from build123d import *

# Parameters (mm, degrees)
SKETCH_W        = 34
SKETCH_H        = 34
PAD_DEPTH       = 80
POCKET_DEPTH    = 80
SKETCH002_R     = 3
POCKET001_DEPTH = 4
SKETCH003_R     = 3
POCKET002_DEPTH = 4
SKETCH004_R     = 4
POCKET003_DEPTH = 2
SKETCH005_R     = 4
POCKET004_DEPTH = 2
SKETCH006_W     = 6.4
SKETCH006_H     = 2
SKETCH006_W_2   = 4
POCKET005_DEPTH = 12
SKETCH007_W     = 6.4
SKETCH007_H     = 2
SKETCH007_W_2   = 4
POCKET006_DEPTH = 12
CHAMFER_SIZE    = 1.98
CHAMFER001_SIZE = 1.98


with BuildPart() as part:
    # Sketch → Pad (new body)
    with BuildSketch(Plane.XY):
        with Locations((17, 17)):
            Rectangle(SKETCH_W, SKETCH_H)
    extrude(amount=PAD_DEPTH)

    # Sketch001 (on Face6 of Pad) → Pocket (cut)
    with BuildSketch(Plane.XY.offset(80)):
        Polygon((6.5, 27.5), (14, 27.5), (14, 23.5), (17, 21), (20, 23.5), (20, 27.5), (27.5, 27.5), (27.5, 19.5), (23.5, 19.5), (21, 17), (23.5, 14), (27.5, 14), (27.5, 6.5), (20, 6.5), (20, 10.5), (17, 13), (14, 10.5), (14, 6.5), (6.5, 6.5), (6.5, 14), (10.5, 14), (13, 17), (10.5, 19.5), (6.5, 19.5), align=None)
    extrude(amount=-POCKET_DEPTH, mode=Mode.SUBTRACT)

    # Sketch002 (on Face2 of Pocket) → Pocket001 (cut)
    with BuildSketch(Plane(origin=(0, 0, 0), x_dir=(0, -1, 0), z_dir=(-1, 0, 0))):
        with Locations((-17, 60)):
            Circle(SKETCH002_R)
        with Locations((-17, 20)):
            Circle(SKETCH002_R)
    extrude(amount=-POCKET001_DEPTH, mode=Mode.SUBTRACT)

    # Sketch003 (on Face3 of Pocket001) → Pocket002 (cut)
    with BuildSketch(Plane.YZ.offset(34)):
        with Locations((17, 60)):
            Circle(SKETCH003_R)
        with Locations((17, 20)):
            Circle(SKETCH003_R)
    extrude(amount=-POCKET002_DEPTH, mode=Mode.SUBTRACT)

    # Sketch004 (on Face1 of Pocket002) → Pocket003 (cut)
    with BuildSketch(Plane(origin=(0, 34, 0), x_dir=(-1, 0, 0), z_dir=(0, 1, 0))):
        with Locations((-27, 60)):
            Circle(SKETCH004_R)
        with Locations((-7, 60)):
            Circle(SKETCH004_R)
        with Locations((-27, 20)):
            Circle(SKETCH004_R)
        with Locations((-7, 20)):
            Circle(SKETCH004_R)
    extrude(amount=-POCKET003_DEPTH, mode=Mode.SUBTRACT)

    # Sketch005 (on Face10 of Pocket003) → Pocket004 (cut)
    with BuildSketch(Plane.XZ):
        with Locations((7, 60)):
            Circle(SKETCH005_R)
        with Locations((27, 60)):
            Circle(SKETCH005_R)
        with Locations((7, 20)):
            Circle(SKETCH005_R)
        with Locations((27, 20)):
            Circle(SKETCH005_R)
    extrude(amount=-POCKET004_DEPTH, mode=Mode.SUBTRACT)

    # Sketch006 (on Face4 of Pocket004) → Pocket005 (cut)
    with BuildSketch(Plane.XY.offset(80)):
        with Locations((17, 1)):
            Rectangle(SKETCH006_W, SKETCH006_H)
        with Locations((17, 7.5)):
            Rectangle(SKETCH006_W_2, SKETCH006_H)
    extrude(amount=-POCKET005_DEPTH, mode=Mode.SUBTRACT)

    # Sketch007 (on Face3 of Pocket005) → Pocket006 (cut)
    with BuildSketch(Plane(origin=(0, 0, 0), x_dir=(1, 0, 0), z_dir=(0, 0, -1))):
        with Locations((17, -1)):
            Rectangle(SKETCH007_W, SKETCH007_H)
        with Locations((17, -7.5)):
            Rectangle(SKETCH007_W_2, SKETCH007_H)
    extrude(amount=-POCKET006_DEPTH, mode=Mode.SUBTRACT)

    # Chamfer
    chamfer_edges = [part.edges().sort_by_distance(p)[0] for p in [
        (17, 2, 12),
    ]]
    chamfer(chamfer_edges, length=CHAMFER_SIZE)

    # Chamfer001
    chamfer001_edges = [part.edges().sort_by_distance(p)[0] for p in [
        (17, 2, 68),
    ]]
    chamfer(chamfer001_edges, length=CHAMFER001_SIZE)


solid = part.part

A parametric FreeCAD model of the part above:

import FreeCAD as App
import Part
import Sketcher
from FreeCAD import Vector
Q = App.Units.Quantity


def edges_at(feature, points):
    """Names of the edges that pass closest to the given points."""
    edges = feature.Shape.Edges
    near = lambda p: min(range(len(edges)), key=lambda i: edges[i].distToShape(Part.Vertex(*p))[0])
    return sorted({f"Edge{near(p) + 1}" for p in points})

doc = App.newDocument("Part")
params = doc.addObject("Spreadsheet::Sheet", "Params")
for row, (alias, value) in enumerate([
    ("sketch1_width", "34 mm"),
    ("pad1_length", "80 mm"),
    ("sketch2_width", "4 mm"),
    ("sketch2_height", "8 mm"),
    ("sketch2_width2", "7.5 mm"),
    ("pocket1_length", "80 mm"),
    ("sketch3_diameter", "6 mm"),
    ("pocket2_length", "4 mm"),
    ("sketch4_diameter", "6 mm"),
    ("pocket3_length", "4 mm"),
    ("sketch5_diameter", "8 mm"),
    ("pocket4_length", "2 mm"),
    ("sketch6_diameter", "8 mm"),
    ("pocket5_length", "2 mm"),
    ("sketch7_width", "4 mm"),
    ("sketch7_height", "2 mm"),
    ("sketch7_width2", "6.4 mm"),
    ("pocket6_length", "12 mm"),
    ("sketch8_width", "4 mm"),
    ("sketch8_height", "2 mm"),
    ("sketch8_width2", "6.4 mm"),
    ("pocket7_length", "12 mm"),
    ("chamfer_size", "1.98 mm"),
    ("chamfer2_size", "1.98 mm"),
], start=1):
    params.set(f"A{row}", alias)
    params.set(f"B{row}", "=" + value)
    params.setAlias(f"B{row}", alias)

body = doc.addObject("PartDesign::Body", "Body")

sketch1 = doc.addObject("Sketcher::SketchObject", "Sketch")
body.addObject(sketch1)
sketch1.AttachmentSupport = (doc.XY_Plane, [""])
sketch1.MapMode = "FlatFace"
sketch1.addGeometry([
    Part.LineSegment(Vector(0, 34, 0), Vector(0, 0, 0)),
    Part.LineSegment(Vector(0, 0, 0), Vector(34, 0, 0)),
    Part.LineSegment(Vector(34, 0, 0), Vector(34, 34, 0)),
    Part.LineSegment(Vector(34, 34, 0), Vector(0, 34, 0)),
], False)
sketch1.addConstraint([
    Sketcher.Constraint("Coincident", 0, 2, 1, 1),
    Sketcher.Constraint("Coincident", 1, 2, 2, 1),
    Sketcher.Constraint("Coincident", 2, 2, 3, 1),
    Sketcher.Constraint("Coincident", 3, 2, 0, 1),
    Sketcher.Constraint("Vertical", 0),
    Sketcher.Constraint("Horizontal", 1),
    Sketcher.Constraint("Vertical", 2),
    Sketcher.Constraint("Horizontal", 3),
    Sketcher.Constraint("Coincident", 0, 2, -1, 1),
    Sketcher.Constraint("Equal", 3, 0),
    Sketcher.Constraint("DistanceX", 1, 1, 1, 2, Q("34 mm")),
])
sketch1.setExpression("Constraints[10]", "Params.sketch1_width")
pad1 = doc.addObject("PartDesign::Pad", "Pad")
body.addObject(pad1)
pad1.Profile = sketch1
pad1.setExpression("Length", "Params.pad1_length")

sketch2 = doc.addObject("Sketcher::SketchObject", "Sketch001")
body.addObject(sketch2)
sketch2.AttachmentSupport = (doc.XY_Plane, [""])
sketch2.MapMode = "FlatFace"
sketch2.AttachmentOffset = App.Placement(Vector(0, 0, 80), App.Rotation())
sketch2.addGeometry([
    Part.LineSegment(Vector(14, 27.5, 0), Vector(6.5, 27.5, 0)),
    Part.LineSegment(Vector(6.5, 27.5, 0), Vector(6.5, 19.5, 0)),
    Part.LineSegment(Vector(6.5, 19.5, 0), Vector(10.5, 19.5, 0)),
    Part.LineSegment(Vector(10.5, 19.5, 0), Vector(13, 17, 0)),
    Part.LineSegment(Vector(13, 17, 0), Vector(10.5, 14, 0)),
    Part.LineSegment(Vector(10.5, 14, 0), Vector(6.5, 14, 0)),
    Part.LineSegment(Vector(6.5, 14, 0), Vector(6.5, 6.5, 0)),
    Part.LineSegment(Vector(6.5, 6.5, 0), Vector(14, 6.5, 0)),
    Part.LineSegment(Vector(14, 6.5, 0), Vector(14, 10.5, 0)),
    Part.LineSegment(Vector(14, 10.5, 0), Vector(17, 13, 0)),
    Part.LineSegment(Vector(17, 13, 0), Vector(20, 10.5, 0)),
    Part.LineSegment(Vector(20, 10.5, 0), Vector(20, 6.5, 0)),
    Part.LineSegment(Vector(20, 6.5, 0), Vector(27.5, 6.5, 0)),
    Part.LineSegment(Vector(27.5, 6.5, 0), Vector(27.5, 14, 0)),
    Part.LineSegment(Vector(27.5, 14, 0), Vector(23.5, 14, 0)),
    Part.LineSegment(Vector(23.5, 14, 0), Vector(21, 17, 0)),
    Part.LineSegment(Vector(21, 17, 0), Vector(23.5, 19.5, 0)),
    Part.LineSegment(Vector(23.5, 19.5, 0), Vector(27.5, 19.5, 0)),
    Part.LineSegment(Vector(27.5, 19.5, 0), Vector(27.5, 27.5, 0)),
    Part.LineSegment(Vector(27.5, 27.5, 0), Vector(20, 27.5, 0)),
    Part.LineSegment(Vector(20, 27.5, 0), Vector(20, 23.5, 0)),
    Part.LineSegment(Vector(20, 23.5, 0), Vector(17, 21, 0)),
    Part.LineSegment(Vector(17, 21, 0), Vector(14, 23.5, 0)),
    Part.LineSegment(Vector(14, 23.5, 0), Vector(14, 27.5, 0)),
], False)
sketch2.addConstraint([
    Sketcher.Constraint("Coincident", 0, 2, 1, 1),
    Sketcher.Constraint("Coincident", 1, 2, 2, 1),
    Sketcher.Constraint("Coincident", 2, 2, 3, 1),
    Sketcher.Constraint("Coincident", 3, 2, 4, 1),
    Sketcher.Constraint("Coincident", 4, 2, 5, 1),
    Sketcher.Constraint("Coincident", 5, 2, 6, 1),
    Sketcher.Constraint("Coincident", 6, 2, 7, 1),
    Sketcher.Constraint("Coincident", 7, 2, 8, 1),
    Sketcher.Constraint("Coincident", 8, 2, 9, 1),
    Sketcher.Constraint("Coincident", 9, 2, 10, 1),
    Sketcher.Constraint("Coincident", 10, 2, 11, 1),
    Sketcher.Constraint("Coincident", 11, 2, 12, 1),
    Sketcher.Constraint("Coincident", 12, 2, 13, 1),
    Sketcher.Constraint("Coincident", 13, 2, 14, 1),
    Sketcher.Constraint("Coincident", 14, 2, 15, 1),
    Sketcher.Constraint("Coincident", 15, 2, 16, 1),
    Sketcher.Constraint("Coincident", 16, 2, 17, 1),
    Sketcher.Constraint("Coincident", 17, 2, 18, 1),
    Sketcher.Constraint("Coincident", 18, 2, 19, 1),
    Sketcher.Constraint("Coincident", 19, 2, 20, 1),
    Sketcher.Constraint("Coincident", 20, 2, 21, 1),
    Sketcher.Constraint("Coincident", 21, 2, 22, 1),
    Sketcher.Constraint("Coincident", 22, 2, 23, 1),
    Sketcher.Constraint("Coincident", 23, 2, 0, 1),
    Sketcher.Constraint("Horizontal", 0),
    Sketcher.Constraint("Vertical", 1),
    Sketcher.Constraint("Horizontal", 2),
    Sketcher.Constraint("Horizontal", 5),
    Sketcher.Constraint("Vertical", 6),
    Sketcher.Constraint("Horizontal", 7),
    Sketcher.Constraint("Vertical", 8),
    Sketcher.Constraint("Vertical", 11),
    Sketcher.Constraint("Horizontal", 12),
    Sketcher.Constraint("Vertical", 13),
    Sketcher.Constraint("Horizontal", 14),
    Sketcher.Constraint("Horizontal", 17),
    Sketcher.Constraint("Vertical", 18),
    Sketcher.Constraint("Horizontal", 19),
    Sketcher.Constraint("Vertical", 20),
    Sketcher.Constraint("Vertical", 23),
    Sketcher.Constraint("Perpendicular", 4, 10),
    Sketcher.Constraint("Perpendicular", 9, 15),
    Sketcher.Constraint("Perpendicular", 3, 16),
    Sketcher.Constraint("Perpendicular", 15, 21),
    Sketcher.Constraint("Parallel", 10, 22),
    Sketcher.Constraint("Horizontal", 8, 2, 10, 2),
    Sketcher.Constraint("Horizontal", 7, 2, 11, 2),
    Sketcher.Constraint("Horizontal", 5, 2, 13, 2),
    Sketcher.Constraint("Horizontal", 3, 2, 15, 2),
    Sketcher.Constraint("Horizontal", 2, 2, 16, 2),
    Sketcher.Constraint("Horizontal", 0, 2, 18, 2),
    Sketcher.Constraint("Horizontal", 20, 2, 22, 2),
    Sketcher.Constraint("Vertical", 2, 2, 4, 2),
    Sketcher.Constraint("Vertical", 1, 2, 5, 2),
    Sketcher.Constraint("Vertical", 14, 2, 16, 2),
    Sketcher.Constraint("Vertical", 13, 2, 17, 2),
    Sketcher.Constraint("Vertical", 11, 2, 19, 2),
    Sketcher.Constraint("Vertical", 9, 2, 21, 2),
    Sketcher.Constraint("Vertical", 8, 2, 22, 2),
    Sketcher.Constraint("Equal", 7, 12),
    Sketcher.Constraint("Equal", 5, 14),
    Sketcher.Constraint("Equal", 19, 6),
    Sketcher.Constraint("Equal", 17, 8),
    Sketcher.Constraint("Equal", 11, 20),
    Sketcher.Constraint("Equal", 4, 9),
    Sketcher.Constraint("DistanceX", 2, 1, 2, 2, Q("4 mm")),
    Sketcher.Constraint("DistanceY", 1, 2, 1, 1, Q("8 mm")),
    Sketcher.Constraint("DistanceX", 0, 2, 0, 1, Q("7.5 mm")),
    Sketcher.Constraint("DistanceX", -1, 1, 3, 2, Q("13 mm")),
    Sketcher.Constraint("DistanceY", -1, 1, 3, 2, Q("17 mm")),
    Sketcher.Constraint("DistanceY", -1, 1, 4, 2, Q("14 mm")),
    Sketcher.Constraint("DistanceX", -1, 1, 7, 2, Q("14 mm")),
])
sketch2.setExpression("Constraints[65]", "Params.sketch2_width")
sketch2.setExpression("Constraints[66]", "Params.sketch2_height")
sketch2.setExpression("Constraints[67]", "Params.sketch2_width2")
pocket1 = doc.addObject("PartDesign::Pocket", "Pocket")
body.addObject(pocket1)
pocket1.Profile = sketch2
pocket1.setExpression("Length", "Params.pocket1_length")

sketch3 = doc.addObject("Sketcher::SketchObject", "Sketch002")
body.addObject(sketch3)
sketch3.AttachmentSupport = (doc.YZ_Plane, [""])
sketch3.MapMode = "FlatFace"
sketch3.addGeometry([
    Part.Circle(Vector(17, 60, 0), Vector(0, 0, 1), 3),
    Part.Circle(Vector(17, 20, 0), Vector(0, 0, 1), 3),
], False)
sketch3.addConstraint([
    Sketcher.Constraint("Equal", 0, 1),
    Sketcher.Constraint("Vertical", 0, 3, 1, 3),
    Sketcher.Constraint("Diameter", 0, Q("6 mm")),
    Sketcher.Constraint("DistanceX", -1, 1, 0, 3, Q("17 mm")),
    Sketcher.Constraint("DistanceY", -1, 1, 0, 3, Q("60 mm")),
    Sketcher.Constraint("DistanceY", -1, 1, 1, 3, Q("20 mm")),
])
sketch3.setExpression("Constraints[2]", "Params.sketch3_diameter")
pocket2 = doc.addObject("PartDesign::Pocket", "Pocket001")
body.addObject(pocket2)
pocket2.Profile = sketch3
pocket2.setExpression("Length", "Params.pocket2_length")
pocket2.Reversed = True

sketch4 = doc.addObject("Sketcher::SketchObject", "Sketch003")
body.addObject(sketch4)
sketch4.AttachmentSupport = (doc.YZ_Plane, [""])
sketch4.MapMode = "FlatFace"
sketch4.AttachmentOffset = App.Placement(Vector(0, 0, 34), App.Rotation())
sketch4.addGeometry([
    Part.Circle(Vector(17, 60, 0), Vector(0, 0, 1), 3),
    Part.Circle(Vector(17, 20, 0), Vector(0, 0, 1), 3),
], False)
sketch4.addConstraint([
    Sketcher.Constraint("Equal", 0, 1),
    Sketcher.Constraint("Vertical", 0, 3, 1, 3),
    Sketcher.Constraint("Diameter", 0, Q("6 mm")),
    Sketcher.Constraint("DistanceX", -1, 1, 0, 3, Q("17 mm")),
    Sketcher.Constraint("DistanceY", -1, 1, 0, 3, Q("60 mm")),
    Sketcher.Constraint("DistanceY", -1, 1, 1, 3, Q("20 mm")),
])
sketch4.setExpression("Constraints[2]", "Params.sketch4_diameter")
pocket3 = doc.addObject("PartDesign::Pocket", "Pocket002")
body.addObject(pocket3)
pocket3.Profile = sketch4
pocket3.setExpression("Length", "Params.pocket3_length")

sketch5 = doc.addObject("Sketcher::SketchObject", "Sketch004")
body.addObject(sketch5)
sketch5.AttachmentSupport = (doc.XZ_Plane, [""])
sketch5.MapMode = "FlatFace"
sketch5.AttachmentOffset = App.Placement(Vector(0, 0, -34), App.Rotation())
sketch5.addGeometry([
    Part.Circle(Vector(27, 60, 0), Vector(0, 0, 1), 4),
    Part.Circle(Vector(7, 60, 0), Vector(0, 0, 1), 4),
    Part.Circle(Vector(27, 20, 0), Vector(0, 0, 1), 4),
    Part.Circle(Vector(7, 20, 0), Vector(0, 0, 1), 4),
], False)
sketch5.addConstraint([
    Sketcher.Constraint("Equal", 0, 1),
    Sketcher.Constraint("Equal", 1, 2),
    Sketcher.Constraint("Equal", 2, 3),
    Sketcher.Constraint("Horizontal", 0, 3, 1, 3),
    Sketcher.Constraint("Horizontal", 2, 3, 3, 3),
    Sketcher.Constraint("Vertical", 0, 3, 2, 3),
    Sketcher.Constraint("Vertical", 1, 3, 3, 3),
    Sketcher.Constraint("Diameter", 0, Q("8 mm")),
    Sketcher.Constraint("DistanceX", -1, 1, 0, 3, Q("27 mm")),
    Sketcher.Constraint("DistanceY", -1, 1, 0, 3, Q("60 mm")),
    Sketcher.Constraint("DistanceX", -1, 1, 1, 3, Q("7 mm")),
    Sketcher.Constraint("DistanceY", -1, 1, 2, 3, Q("20 mm")),
])
sketch5.setExpression("Constraints[7]", "Params.sketch5_diameter")
pocket4 = doc.addObject("PartDesign::Pocket", "Pocket003")
body.addObject(pocket4)
pocket4.Profile = sketch5
pocket4.setExpression("Length", "Params.pocket4_length")
pocket4.Reversed = True

sketch6 = doc.addObject("Sketcher::SketchObject", "Sketch005")
body.addObject(sketch6)
sketch6.AttachmentSupport = (doc.XZ_Plane, [""])
sketch6.MapMode = "FlatFace"
sketch6.addGeometry([
    Part.Circle(Vector(7, 60, 0), Vector(0, 0, 1), 4),
    Part.Circle(Vector(27, 60, 0), Vector(0, 0, 1), 4),
    Part.Circle(Vector(7, 20, 0), Vector(0, 0, 1), 4),
    Part.Circle(Vector(27, 20, 0), Vector(0, 0, 1), 4),
], False)
sketch6.addConstraint([
    Sketcher.Constraint("Equal", 0, 1),
    Sketcher.Constraint("Equal", 1, 2),
    Sketcher.Constraint("Equal", 2, 3),
    Sketcher.Constraint("Horizontal", 0, 3, 1, 3),
    Sketcher.Constraint("Horizontal", 2, 3, 3, 3),
    Sketcher.Constraint("Vertical", 0, 3, 2, 3),
    Sketcher.Constraint("Vertical", 1, 3, 3, 3),
    Sketcher.Constraint("Diameter", 0, Q("8 mm")),
    Sketcher.Constraint("DistanceX", -1, 1, 0, 3, Q("7 mm")),
    Sketcher.Constraint("DistanceY", -1, 1, 0, 3, Q("60 mm")),
    Sketcher.Constraint("DistanceX", -1, 1, 1, 3, Q("27 mm")),
    Sketcher.Constraint("DistanceY", -1, 1, 2, 3, Q("20 mm")),
])
sketch6.setExpression("Constraints[7]", "Params.sketch6_diameter")
pocket5 = doc.addObject("PartDesign::Pocket", "Pocket004")
body.addObject(pocket5)
pocket5.Profile = sketch6
pocket5.setExpression("Length", "Params.pocket5_length")

sketch7 = doc.addObject("Sketcher::SketchObject", "Sketch006")
body.addObject(sketch7)
sketch7.AttachmentSupport = (doc.XY_Plane, [""])
sketch7.MapMode = "FlatFace"
sketch7.AttachmentOffset = App.Placement(Vector(0, 0, 80), App.Rotation())
sketch7.addGeometry([
    Part.LineSegment(Vector(13.8, 2, 0), Vector(13.8, 0, 0)),
    Part.LineSegment(Vector(13.8, 0, 0), Vector(20.2, 0, 0)),
    Part.LineSegment(Vector(20.2, 0, 0), Vector(20.2, 2, 0)),
    Part.LineSegment(Vector(20.2, 2, 0), Vector(13.8, 2, 0)),
    Part.LineSegment(Vector(15, 8.5, 0), Vector(15, 6.5, 0)),
    Part.LineSegment(Vector(15, 6.5, 0), Vector(19, 6.5, 0)),
    Part.LineSegment(Vector(19, 6.5, 0), Vector(19, 8.5, 0)),
    Part.LineSegment(Vector(19, 8.5, 0), Vector(15, 8.5, 0)),
], False)
sketch7.addConstraint([
    Sketcher.Constraint("Coincident", 0, 2, 1, 1),
    Sketcher.Constraint("Coincident", 1, 2, 2, 1),
    Sketcher.Constraint("Coincident", 2, 2, 3, 1),
    Sketcher.Constraint("Coincident", 3, 2, 0, 1),
    Sketcher.Constraint("Coincident", 4, 2, 5, 1),
    Sketcher.Constraint("Coincident", 5, 2, 6, 1),
    Sketcher.Constraint("Coincident", 6, 2, 7, 1),
    Sketcher.Constraint("Coincident", 7, 2, 4, 1),
    Sketcher.Constraint("Vertical", 0),
    Sketcher.Constraint("Horizontal", 1),
    Sketcher.Constraint("Vertical", 2),
    Sketcher.Constraint("Horizontal", 3),
    Sketcher.Constraint("Vertical", 4),
    Sketcher.Constraint("Horizontal", 5),
    Sketcher.Constraint("Vertical", 6),
    Sketcher.Constraint("Horizontal", 7),
    Sketcher.Constraint("PointOnObject", 0, 2, -1),
    Sketcher.Constraint("Equal", 2, 4),
    Sketcher.Constraint("DistanceX", 5, 1, 5, 2, Q("4 mm")),
    Sketcher.Constraint("DistanceY", 0, 2, 0, 1, Q("2 mm")),
    Sketcher.Constraint("DistanceX", 1, 1, 1, 2, Q("6.4 mm")),
    Sketcher.Constraint("DistanceX", -1, 1, 4, 2, Q("15 mm")),
    Sketcher.Constraint("DistanceX", -1, 1, 0, 2, Q("13.8 mm")),
    Sketcher.Constraint("DistanceY", -1, 1, 4, 2, Q("6.5 mm")),
])
sketch7.setExpression("Constraints[18]", "Params.sketch7_width")
sketch7.setExpression("Constraints[19]", "Params.sketch7_height")
sketch7.setExpression("Constraints[20]", "Params.sketch7_width2")
pocket6 = doc.addObject("PartDesign::Pocket", "Pocket005")
body.addObject(pocket6)
pocket6.Profile = sketch7
pocket6.setExpression("Length", "Params.pocket6_length")

sketch8 = doc.addObject("Sketcher::SketchObject", "Sketch007")
body.addObject(sketch8)
sketch8.AttachmentSupport = (doc.XY_Plane, [""])
sketch8.MapMode = "FlatFace"
sketch8.addGeometry([
    Part.LineSegment(Vector(13.8, 0, 0), Vector(13.8, 2, 0)),
    Part.LineSegment(Vector(13.8, 2, 0), Vector(20.2, 2, 0)),
    Part.LineSegment(Vector(20.2, 2, 0), Vector(20.2, 0, 0)),
    Part.LineSegment(Vector(20.2, 0, 0), Vector(13.8, 0, 0)),
    Part.LineSegment(Vector(15, 6.5, 0), Vector(15, 8.5, 0)),
    Part.LineSegment(Vector(15, 8.5, 0), Vector(19, 8.5, 0)),
    Part.LineSegment(Vector(19, 8.5, 0), Vector(19, 6.5, 0)),
    Part.LineSegment(Vector(19, 6.5, 0), Vector(15, 6.5, 0)),
], False)
sketch8.addConstraint([
    Sketcher.Constraint("Coincident", 0, 2, 1, 1),
    Sketcher.Constraint("Coincident", 1, 2, 2, 1),
    Sketcher.Constraint("Coincident", 2, 2, 3, 1),
    Sketcher.Constraint("Coincident", 3, 2, 0, 1),
    Sketcher.Constraint("Coincident", 4, 2, 5, 1),
    Sketcher.Constraint("Coincident", 5, 2, 6, 1),
    Sketcher.Constraint("Coincident", 6, 2, 7, 1),
    Sketcher.Constraint("Coincident", 7, 2, 4, 1),
    Sketcher.Constraint("Vertical", 0),
    Sketcher.Constraint("Horizontal", 1),
    Sketcher.Constraint("Vertical", 2),
    Sketcher.Constraint("Horizontal", 3),
    Sketcher.Constraint("Vertical", 4),
    Sketcher.Constraint("Horizontal", 5),
    Sketcher.Constraint("Vertical", 6),
    Sketcher.Constraint("Horizontal", 7),
    Sketcher.Constraint("PointOnObject", 2, 2, -1),
    Sketcher.Constraint("Equal", 2, 4),
    Sketcher.Constraint("DistanceX", 5, 1, 5, 2, Q("4 mm")),
    Sketcher.Constraint("DistanceY", 0, 1, 0, 2, Q("2 mm")),
    Sketcher.Constraint("DistanceX", 1, 1, 1, 2, Q("6.4 mm")),
    Sketcher.Constraint("DistanceX", -1, 1, 4, 2, Q("15 mm")),
    Sketcher.Constraint("DistanceX", -1, 1, 0, 2, Q("13.8 mm")),
    Sketcher.Constraint("DistanceY", -1, 1, 4, 2, Q("8.5 mm")),
])
sketch8.setExpression("Constraints[18]", "Params.sketch8_width")
sketch8.setExpression("Constraints[19]", "Params.sketch8_height")
sketch8.setExpression("Constraints[20]", "Params.sketch8_width2")
pocket7 = doc.addObject("PartDesign::Pocket", "Pocket006")
body.addObject(pocket7)
pocket7.Profile = sketch8
pocket7.setExpression("Length", "Params.pocket7_length")
pocket7.Reversed = True
doc.recompute()

chamfer = doc.addObject("PartDesign::Chamfer", "Chamfer")
body.addObject(chamfer)
chamfer.Base = (pocket7, edges_at(pocket7, [(17, 2, 12)]))
chamfer.setExpression("Size", "Params.chamfer_size")
doc.recompute()

chamfer2 = doc.addObject("PartDesign::Chamfer", "Chamfer001")
body.addObject(chamfer2)
chamfer2.Base = (chamfer, edges_at(chamfer, [(17, 2, 68)]))
chamfer2.setExpression("Size", "Params.chamfer2_size")

doc.recompute()
